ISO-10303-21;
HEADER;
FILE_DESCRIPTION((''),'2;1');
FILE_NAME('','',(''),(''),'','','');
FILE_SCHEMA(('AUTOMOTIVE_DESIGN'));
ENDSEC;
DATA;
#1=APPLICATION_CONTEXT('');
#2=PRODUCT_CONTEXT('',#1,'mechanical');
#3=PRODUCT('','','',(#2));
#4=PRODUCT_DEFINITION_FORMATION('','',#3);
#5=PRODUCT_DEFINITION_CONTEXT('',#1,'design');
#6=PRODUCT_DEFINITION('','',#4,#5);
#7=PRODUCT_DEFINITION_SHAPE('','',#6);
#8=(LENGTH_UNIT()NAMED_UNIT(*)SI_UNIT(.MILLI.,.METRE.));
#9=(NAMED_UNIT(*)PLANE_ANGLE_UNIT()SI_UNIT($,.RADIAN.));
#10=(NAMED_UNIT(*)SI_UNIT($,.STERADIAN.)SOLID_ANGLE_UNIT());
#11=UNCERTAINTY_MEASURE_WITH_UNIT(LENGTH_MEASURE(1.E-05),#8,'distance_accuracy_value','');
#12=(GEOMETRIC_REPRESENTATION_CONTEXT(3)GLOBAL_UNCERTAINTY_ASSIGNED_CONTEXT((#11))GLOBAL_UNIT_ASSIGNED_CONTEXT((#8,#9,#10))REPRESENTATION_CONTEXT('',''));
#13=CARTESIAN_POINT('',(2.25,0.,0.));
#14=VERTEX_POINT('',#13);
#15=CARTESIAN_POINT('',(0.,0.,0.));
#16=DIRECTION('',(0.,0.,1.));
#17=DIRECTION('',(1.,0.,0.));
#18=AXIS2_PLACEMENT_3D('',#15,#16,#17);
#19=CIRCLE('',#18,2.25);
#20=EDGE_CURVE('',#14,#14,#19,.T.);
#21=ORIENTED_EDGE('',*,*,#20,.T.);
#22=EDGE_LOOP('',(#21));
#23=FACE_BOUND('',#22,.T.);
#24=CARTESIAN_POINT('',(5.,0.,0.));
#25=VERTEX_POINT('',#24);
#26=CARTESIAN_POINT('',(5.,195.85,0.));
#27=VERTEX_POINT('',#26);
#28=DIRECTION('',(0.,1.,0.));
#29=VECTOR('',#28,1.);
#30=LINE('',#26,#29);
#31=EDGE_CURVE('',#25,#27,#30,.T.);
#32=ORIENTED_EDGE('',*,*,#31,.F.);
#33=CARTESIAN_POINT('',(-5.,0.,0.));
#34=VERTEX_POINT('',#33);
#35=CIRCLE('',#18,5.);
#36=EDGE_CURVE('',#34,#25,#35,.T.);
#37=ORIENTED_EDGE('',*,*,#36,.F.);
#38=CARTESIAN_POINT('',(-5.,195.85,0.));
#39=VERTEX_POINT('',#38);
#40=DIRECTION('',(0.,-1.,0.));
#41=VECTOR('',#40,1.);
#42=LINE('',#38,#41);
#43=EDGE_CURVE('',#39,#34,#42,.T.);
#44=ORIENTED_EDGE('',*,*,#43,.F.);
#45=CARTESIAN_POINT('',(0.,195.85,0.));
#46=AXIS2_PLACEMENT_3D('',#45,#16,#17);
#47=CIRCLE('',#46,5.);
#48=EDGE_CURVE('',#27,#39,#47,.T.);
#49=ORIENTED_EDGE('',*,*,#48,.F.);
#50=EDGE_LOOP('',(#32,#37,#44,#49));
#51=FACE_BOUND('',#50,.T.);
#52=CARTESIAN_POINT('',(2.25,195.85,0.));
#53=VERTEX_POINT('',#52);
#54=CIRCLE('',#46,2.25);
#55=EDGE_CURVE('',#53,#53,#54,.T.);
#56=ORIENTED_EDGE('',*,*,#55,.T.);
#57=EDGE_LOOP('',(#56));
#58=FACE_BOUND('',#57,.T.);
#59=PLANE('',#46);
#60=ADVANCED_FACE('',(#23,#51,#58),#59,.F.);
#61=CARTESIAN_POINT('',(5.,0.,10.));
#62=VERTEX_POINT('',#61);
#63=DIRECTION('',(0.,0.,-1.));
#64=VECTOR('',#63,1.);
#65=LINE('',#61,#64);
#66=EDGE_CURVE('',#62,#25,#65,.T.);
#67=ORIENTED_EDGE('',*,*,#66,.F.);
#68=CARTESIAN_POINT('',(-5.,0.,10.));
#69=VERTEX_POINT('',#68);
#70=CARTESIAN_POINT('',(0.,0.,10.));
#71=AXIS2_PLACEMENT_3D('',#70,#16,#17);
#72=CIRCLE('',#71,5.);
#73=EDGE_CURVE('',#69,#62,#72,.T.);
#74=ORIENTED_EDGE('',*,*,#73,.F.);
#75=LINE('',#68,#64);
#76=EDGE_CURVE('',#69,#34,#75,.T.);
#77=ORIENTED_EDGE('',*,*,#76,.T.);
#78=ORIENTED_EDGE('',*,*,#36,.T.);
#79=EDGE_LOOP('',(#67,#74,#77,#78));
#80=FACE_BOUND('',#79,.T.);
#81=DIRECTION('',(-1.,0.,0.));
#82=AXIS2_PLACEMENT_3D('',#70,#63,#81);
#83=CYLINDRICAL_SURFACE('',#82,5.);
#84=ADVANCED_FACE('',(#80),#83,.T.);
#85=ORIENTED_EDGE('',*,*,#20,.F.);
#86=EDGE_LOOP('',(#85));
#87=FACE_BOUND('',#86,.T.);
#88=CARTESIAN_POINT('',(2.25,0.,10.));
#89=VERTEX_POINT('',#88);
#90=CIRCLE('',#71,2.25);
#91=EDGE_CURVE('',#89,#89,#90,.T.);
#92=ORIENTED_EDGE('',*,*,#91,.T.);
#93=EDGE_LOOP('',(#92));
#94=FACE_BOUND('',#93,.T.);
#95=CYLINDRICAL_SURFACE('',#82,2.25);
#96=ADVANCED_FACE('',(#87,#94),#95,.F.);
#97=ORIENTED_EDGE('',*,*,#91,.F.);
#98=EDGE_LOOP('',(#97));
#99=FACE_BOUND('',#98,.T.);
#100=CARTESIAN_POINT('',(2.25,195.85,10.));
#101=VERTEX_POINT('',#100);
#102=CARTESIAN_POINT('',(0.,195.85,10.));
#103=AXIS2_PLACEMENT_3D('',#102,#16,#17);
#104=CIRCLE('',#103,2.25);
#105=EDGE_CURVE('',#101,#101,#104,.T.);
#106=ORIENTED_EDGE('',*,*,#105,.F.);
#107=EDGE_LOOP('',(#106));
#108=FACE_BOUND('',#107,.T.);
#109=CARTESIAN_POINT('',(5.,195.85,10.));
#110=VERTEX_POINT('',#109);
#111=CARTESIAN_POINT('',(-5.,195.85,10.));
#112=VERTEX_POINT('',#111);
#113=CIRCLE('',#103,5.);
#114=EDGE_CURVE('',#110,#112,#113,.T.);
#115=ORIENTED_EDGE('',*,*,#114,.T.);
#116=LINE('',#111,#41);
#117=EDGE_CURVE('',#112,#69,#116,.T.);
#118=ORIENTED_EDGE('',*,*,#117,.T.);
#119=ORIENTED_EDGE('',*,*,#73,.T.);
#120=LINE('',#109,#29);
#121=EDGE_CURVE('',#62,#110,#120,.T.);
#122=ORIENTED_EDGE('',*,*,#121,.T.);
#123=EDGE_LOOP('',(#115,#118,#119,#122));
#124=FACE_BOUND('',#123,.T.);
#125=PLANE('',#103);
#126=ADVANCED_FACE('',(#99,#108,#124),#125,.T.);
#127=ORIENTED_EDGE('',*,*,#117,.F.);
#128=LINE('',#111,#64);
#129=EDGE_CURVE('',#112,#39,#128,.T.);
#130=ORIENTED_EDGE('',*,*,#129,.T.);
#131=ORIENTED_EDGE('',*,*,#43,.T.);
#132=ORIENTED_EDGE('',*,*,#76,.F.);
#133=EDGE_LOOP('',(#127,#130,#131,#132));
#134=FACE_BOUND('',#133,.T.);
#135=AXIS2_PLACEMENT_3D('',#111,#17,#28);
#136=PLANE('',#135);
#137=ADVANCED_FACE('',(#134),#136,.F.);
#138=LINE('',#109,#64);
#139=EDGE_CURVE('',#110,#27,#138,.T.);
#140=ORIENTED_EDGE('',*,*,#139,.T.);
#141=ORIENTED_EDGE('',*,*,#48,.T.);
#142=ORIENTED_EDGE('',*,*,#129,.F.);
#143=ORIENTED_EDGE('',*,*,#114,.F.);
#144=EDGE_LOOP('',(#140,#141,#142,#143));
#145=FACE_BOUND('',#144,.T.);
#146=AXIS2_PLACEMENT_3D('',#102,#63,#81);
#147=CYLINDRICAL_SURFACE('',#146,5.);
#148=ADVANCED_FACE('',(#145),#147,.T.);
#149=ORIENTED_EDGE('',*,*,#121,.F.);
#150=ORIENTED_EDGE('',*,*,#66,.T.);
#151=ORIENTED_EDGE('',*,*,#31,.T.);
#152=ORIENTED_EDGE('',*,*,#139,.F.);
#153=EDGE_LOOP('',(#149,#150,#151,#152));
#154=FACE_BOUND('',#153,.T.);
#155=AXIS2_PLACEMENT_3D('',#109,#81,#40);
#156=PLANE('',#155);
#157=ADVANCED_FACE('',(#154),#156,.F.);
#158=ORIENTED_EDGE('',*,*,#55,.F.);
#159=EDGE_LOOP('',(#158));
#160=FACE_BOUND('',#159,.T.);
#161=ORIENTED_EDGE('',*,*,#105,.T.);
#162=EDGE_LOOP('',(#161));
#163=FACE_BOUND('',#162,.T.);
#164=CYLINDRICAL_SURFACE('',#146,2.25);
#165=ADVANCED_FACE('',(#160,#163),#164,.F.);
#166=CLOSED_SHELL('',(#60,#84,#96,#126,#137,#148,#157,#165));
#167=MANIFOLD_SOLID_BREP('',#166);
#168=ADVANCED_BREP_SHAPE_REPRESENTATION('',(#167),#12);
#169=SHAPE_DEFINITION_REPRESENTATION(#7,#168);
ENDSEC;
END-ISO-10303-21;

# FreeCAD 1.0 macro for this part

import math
import FreeCAD as App
import Part
import Sketcher

V = App.Vector

doc = App.newDocument("Part")
body = doc.addObject("PartDesign::Body", "Body")

# Sketch on XY plane
sketch1 = body.newObject("Sketcher::SketchObject", "Sketch")
sketch1.AttachmentSupport = (doc.getObject("XY_Plane"), [""])
sketch1.MapMode = "FlatFace"
sketch1.addGeometry([
    Part.LineSegment(V(5, 0, 0), V(5, 195.85, 0)),  # 0
    Part.ArcOfCircle(Part.Circle(V(0, 195.85, 0), V(0, 0, 1), 5), math.radians(0), math.radians(180)),  # 1
    Part.LineSegment(V(-5, 195.85, 0), V(-5, 0, 0)),  # 2
    Part.ArcOfCircle(Part.Circle(V(0, 0, 0), V(0, 0, 1), 5), math.radians(180), math.radians(360)),  # 3
    Part.Circle(V(0, 0, 0), V(0, 0, 1), 2.25),  # 4
    Part.Circle(V(0, 195.85, 0), V(0, 0, 1), 2.25),  # 5
], False)
sketch1.addConstraint([
    Sketcher.Constraint("Tangent", 0, 2, 1, 1),
    Sketcher.Constraint("Tangent", 1, 2, 2, 1),
    Sketcher.Constraint("Tangent", 2, 2, 3, 1),
    Sketcher.Constraint("Tangent", 3, 2, 0, 1),
    Sketcher.Constraint("Vertical", 0),
    Sketcher.Constraint("Vertical", 2),
    Sketcher.Constraint("Coincident", 3, 3, -1, 1),
    Sketcher.Constraint("Coincident", 4, 3, -1, 1),
    Sketcher.Constraint("Coincident", 5, 3, 1, 3),
    Sketcher.Constraint("Equal", 4, 5),
    Sketcher.Constraint("Radius", 1, 5.0),
    Sketcher.Constraint("Diameter", 4, 4.5),
    Sketcher.Constraint("DistanceY", 0, 1, 0, 2, 195.85),
])
pad1 = body.newObject("PartDesign::Pad", "Pad")
pad1.Profile = sketch1
pad1.Length = 10

doc.recompute()
